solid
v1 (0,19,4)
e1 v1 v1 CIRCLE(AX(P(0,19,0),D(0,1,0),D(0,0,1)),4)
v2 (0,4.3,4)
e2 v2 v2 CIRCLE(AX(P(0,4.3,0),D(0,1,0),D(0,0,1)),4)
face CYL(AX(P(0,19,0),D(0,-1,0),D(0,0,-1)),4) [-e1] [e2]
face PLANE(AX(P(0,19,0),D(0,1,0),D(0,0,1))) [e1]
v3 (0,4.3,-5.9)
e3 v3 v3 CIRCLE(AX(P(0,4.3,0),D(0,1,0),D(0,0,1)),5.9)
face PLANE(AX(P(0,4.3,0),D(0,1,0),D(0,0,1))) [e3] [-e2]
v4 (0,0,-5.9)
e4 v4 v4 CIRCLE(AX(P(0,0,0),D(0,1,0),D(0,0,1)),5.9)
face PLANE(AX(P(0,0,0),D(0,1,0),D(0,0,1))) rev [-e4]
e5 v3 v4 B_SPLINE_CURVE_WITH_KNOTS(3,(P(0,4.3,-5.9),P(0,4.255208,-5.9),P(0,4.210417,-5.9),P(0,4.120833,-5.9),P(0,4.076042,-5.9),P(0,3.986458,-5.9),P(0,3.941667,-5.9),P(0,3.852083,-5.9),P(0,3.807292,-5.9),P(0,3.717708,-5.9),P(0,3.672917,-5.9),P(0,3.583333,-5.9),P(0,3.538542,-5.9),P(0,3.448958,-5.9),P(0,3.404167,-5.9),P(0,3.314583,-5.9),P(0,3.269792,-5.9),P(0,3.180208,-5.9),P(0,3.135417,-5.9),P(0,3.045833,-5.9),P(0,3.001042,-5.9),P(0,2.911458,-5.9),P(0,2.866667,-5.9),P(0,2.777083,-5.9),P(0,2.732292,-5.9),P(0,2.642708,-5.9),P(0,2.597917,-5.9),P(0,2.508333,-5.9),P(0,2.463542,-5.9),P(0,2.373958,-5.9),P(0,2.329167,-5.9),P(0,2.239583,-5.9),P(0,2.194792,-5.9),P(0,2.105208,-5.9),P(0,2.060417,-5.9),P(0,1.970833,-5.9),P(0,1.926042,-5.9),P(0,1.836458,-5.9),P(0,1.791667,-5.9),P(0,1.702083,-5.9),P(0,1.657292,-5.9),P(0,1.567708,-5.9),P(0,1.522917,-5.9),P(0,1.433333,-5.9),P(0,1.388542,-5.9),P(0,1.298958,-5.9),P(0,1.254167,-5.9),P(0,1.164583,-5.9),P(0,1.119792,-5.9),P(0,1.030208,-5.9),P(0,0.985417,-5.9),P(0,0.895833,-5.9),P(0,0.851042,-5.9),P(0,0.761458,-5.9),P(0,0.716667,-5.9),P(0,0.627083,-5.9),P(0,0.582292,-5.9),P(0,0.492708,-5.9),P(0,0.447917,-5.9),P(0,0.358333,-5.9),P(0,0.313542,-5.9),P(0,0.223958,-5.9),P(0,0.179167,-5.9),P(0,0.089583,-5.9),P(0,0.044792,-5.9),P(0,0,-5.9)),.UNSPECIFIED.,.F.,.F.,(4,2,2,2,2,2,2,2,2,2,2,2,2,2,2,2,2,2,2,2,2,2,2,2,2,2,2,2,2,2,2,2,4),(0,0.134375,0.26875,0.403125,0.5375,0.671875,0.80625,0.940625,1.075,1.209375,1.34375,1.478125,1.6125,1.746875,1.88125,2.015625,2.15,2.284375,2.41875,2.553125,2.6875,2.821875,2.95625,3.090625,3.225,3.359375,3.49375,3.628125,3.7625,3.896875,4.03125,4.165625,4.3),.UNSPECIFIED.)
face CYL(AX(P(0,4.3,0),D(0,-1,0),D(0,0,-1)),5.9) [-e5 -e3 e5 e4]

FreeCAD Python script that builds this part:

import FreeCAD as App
import Part
import Sketcher
Q = App.Units.Quantity

doc = App.newDocument("Part")
body = doc.addObject("PartDesign::Body", "Body")

# Sketch on XZ plane
sketch1 = doc.addObject("Sketcher::SketchObject", "Sketch")
body.addObject(sketch1)
sketch1.AttachmentSupport = (doc.XZ_Plane, [""])
sketch1.MapMode = "FlatFace"
sketch1.addGeometry(Part.Circle(App.Vector(0, 0, 0), App.Vector(0, 0, 1), 6), False)
sketch1.addConstraint(Sketcher.Constraint("Coincident", 0, 3, -1, 1))
sketch1.addConstraint(Sketcher.Constraint("Diameter", 0, Q("11.8 mm")))
pad1 = doc.addObject("PartDesign::Pad", "Pad")
body.addObject(pad1)
pad1.Profile = sketch1
pad1.Length = 4.3
pad1.Reversed = True

# Sketch on XZ plane
sketch2 = doc.addObject("Sketcher::SketchObject", "Sketch001")
body.addObject(sketch2)
sketch2.AttachmentSupport = (doc.XZ_Plane, [""])
sketch2.MapMode = "FlatFace"
sketch2.AttachmentOffset = App.Placement(App.Vector(0, 0, -4.3), App.Rotation())
sketch2.addGeometry(Part.Circle(App.Vector(0, 0, 0), App.Vector(0, 0, 1), 4), False)
sketch2.addConstraint(Sketcher.Constraint("Coincident", 0, 3, -1, 1))
sketch2.addConstraint(Sketcher.Constraint("Diameter", 0, Q("8 mm")))
pad2 = doc.addObject("PartDesign::Pad", "Pad001")
body.addObject(pad2)
pad2.Profile = sketch2
pad2.Length = 14.7
pad2.Reversed = True

doc.recompute()
